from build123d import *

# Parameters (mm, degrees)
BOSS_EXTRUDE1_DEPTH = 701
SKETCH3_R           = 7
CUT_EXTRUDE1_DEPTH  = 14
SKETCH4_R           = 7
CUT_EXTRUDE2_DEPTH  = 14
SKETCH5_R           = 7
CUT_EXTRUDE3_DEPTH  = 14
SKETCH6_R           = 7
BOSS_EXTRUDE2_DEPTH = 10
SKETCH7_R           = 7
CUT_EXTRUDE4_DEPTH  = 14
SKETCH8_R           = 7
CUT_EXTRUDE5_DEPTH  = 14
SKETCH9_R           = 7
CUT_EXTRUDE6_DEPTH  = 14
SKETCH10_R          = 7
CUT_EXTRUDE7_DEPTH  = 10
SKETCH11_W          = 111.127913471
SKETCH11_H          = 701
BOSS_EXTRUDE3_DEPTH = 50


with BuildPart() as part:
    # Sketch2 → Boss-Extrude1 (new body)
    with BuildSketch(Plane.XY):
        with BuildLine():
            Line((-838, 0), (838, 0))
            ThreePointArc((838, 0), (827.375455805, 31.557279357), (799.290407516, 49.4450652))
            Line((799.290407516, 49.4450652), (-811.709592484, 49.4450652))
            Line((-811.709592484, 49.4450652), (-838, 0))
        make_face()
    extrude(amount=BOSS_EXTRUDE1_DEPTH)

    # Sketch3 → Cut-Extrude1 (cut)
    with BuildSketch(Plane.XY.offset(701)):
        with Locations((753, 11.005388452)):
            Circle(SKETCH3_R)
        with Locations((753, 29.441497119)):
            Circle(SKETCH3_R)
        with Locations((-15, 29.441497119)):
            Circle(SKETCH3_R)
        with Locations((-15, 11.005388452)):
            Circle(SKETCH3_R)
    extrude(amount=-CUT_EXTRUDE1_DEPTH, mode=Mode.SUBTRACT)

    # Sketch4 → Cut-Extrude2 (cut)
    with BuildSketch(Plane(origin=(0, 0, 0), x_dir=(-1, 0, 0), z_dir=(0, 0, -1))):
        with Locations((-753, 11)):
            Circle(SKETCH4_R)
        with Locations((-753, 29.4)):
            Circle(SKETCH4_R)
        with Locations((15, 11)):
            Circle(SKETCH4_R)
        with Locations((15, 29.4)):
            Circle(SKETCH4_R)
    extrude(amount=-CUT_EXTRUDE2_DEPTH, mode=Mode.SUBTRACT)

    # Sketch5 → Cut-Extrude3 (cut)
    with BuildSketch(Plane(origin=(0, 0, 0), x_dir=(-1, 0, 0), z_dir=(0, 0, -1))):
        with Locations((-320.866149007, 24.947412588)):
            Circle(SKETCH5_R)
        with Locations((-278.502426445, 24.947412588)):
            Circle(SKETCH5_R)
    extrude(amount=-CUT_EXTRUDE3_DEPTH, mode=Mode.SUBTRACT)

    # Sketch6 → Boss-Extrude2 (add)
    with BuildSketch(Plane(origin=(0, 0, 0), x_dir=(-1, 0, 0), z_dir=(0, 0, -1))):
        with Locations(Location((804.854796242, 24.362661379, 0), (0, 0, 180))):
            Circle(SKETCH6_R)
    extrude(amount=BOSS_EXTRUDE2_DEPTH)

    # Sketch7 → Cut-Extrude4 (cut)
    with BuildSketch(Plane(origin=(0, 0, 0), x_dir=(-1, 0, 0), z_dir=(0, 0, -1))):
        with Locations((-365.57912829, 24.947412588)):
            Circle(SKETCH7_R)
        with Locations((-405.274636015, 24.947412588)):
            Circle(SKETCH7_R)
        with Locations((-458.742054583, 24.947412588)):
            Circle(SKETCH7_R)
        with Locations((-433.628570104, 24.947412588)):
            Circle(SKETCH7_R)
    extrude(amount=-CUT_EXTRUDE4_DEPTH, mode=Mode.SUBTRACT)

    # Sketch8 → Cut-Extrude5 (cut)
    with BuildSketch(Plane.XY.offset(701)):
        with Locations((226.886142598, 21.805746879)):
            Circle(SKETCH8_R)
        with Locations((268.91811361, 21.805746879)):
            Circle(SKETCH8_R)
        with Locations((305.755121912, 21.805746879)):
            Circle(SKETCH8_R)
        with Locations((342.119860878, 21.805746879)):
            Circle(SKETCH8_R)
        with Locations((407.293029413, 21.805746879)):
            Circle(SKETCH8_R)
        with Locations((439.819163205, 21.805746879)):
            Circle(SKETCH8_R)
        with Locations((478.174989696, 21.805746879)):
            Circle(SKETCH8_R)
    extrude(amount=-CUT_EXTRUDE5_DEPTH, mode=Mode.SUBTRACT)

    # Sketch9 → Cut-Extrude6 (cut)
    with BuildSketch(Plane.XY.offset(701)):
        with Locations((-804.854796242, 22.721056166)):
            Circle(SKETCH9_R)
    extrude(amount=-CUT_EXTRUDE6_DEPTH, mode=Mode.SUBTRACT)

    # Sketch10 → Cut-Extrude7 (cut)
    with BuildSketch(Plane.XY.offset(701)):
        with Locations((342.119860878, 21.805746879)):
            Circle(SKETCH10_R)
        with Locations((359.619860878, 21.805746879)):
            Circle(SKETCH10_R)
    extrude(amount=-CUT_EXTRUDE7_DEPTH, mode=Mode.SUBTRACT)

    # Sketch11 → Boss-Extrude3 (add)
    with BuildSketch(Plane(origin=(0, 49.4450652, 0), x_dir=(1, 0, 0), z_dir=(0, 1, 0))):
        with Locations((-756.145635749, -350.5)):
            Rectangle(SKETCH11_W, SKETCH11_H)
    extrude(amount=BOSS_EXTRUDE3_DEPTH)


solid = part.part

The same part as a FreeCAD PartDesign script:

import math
import FreeCAD as App
import Part
import Sketcher

V = App.Vector
Q = App.Units.Quantity

doc = App.newDocument("Part")
body = doc.addObject("PartDesign::Body", "Body")

# Sketch on XY plane
sketch1 = doc.addObject("Sketcher::SketchObject", "Sketch")
body.addObject(sketch1)
sketch1.AttachmentSupport = (doc.XY_Plane, [""])
sketch1.MapMode = "FlatFace"
sketch1.addGeometry(Part.LineSegment(V(-838, 0, 0), V(838, 0, 0)), False)
sketch1.addGeometry(Part.ArcOfCircle(Part.Circle(V(788, 1, 0), V(0, 0, 1), 50), math.radians(-1), math.radians(77)), False)
sketch1.addGeometry(Part.LineSegment(V(799, 49, 0), V(-812, 49, 0)), False)
sketch1.addGeometry(Part.LineSegment(V(-812, 49, 0), V(-838, 0, 0)), False)
sketch1.addConstraint(Sketcher.Constraint("Coincident", 0, 2, 1, 1))
sketch1.addConstraint(Sketcher.Constraint("Coincident", 1, 2, 2, 1))
sketch1.addConstraint(Sketcher.Constraint("Coincident", 2, 2, 3, 1))
sketch1.addConstraint(Sketcher.Constraint("Coincident", 3, 2, 0, 1))
sketch1.addConstraint(Sketcher.Constraint("Horizontal", 0))
sketch1.addConstraint(Sketcher.Constraint("Horizontal", 2))
sketch1.addConstraint(Sketcher.Constraint("Symmetric", 0, 2, 3, 2, -1, 1))
sketch1.addConstraint(Sketcher.Constraint("Radius", 1, Q("50 mm")))
sketch1.addConstraint(Sketcher.Constraint("DistanceX", 0, 1, 0, 2, Q("1676 mm")))
sketch1.addConstraint(Sketcher.Constraint("DistanceX", 2, 2, 2, 1, Q("1611 mm")))
sketch1.addConstraint(Sketcher.Constraint("Angle", 3, Q("-118 deg")))
sketch1.addConstraint(Sketcher.Constraint("Distance", 3, Q("56 mm")))
pad1 = doc.addObject("PartDesign::Pad", "Pad")
body.addObject(pad1)
pad1.Profile = sketch1
pad1.Length = 701

# Sketch on XY plane
sketch2 = doc.addObject("Sketcher::SketchObject", "Sketch001")
body.addObject(sketch2)
sketch2.AttachmentSupport = (doc.XY_Plane, [""])
sketch2.MapMode = "FlatFace"
sketch2.AttachmentOffset = App.Placement(V(0, 0, 701), App.Rotation())
sketch2.addGeometry(Part.Circle(V(753, 11, 0), V(0, 0, 1), 7), False)
sketch2.addGeometry(Part.Circle(V(753, 29, 0), V(0, 0, 1), 7), False)
sketch2.addGeometry(Part.Circle(V(-15, 29, 0), V(0, 0, 1), 7), False)
sketch2.addGeometry(Part.Circle(V(-15, 11, 0), V(0, 0, 1), 7), False)
sketch2.addConstraint(Sketcher.Constraint("Equal", 0, 1))
sketch2.addConstraint(Sketcher.Constraint("Equal", 1, 2))
sketch2.addConstraint(Sketcher.Constraint("Equal", 2, 3))
sketch2.addConstraint(Sketcher.Constraint("Horizontal", 1, 3, 2, 3))
sketch2.addConstraint(Sketcher.Constraint("Horizontal", 0, 3, 3, 3))
sketch2.addConstraint(Sketcher.Constraint("Vertical", 0, 3, 1, 3))
sketch2.addConstraint(Sketcher.Constraint("Vertical", 2, 3, 3, 3))
sketch2.addConstraint(Sketcher.Constraint("Diameter", 0, Q("14 mm")))
sketch2.addConstraint(Sketcher.Constraint("DistanceX", -1, 1, 0, 3, Q("753 mm")))
sketch2.addConstraint(Sketcher.Constraint("DistanceX", 2, 3, -1, 1, Q("15 mm")))
sketch2.addConstraint(Sketcher.Constraint("DistanceY", -1, 1, 0, 3, Q("11.005388 mm")))
sketch2.addConstraint(Sketcher.Constraint("DistanceY", 0, 3, 1, 3, Q("18.436109 mm")))
pocket1 = doc.addObject("PartDesign::Pocket", "Pocket")
body.addObject(pocket1)
pocket1.Profile = sketch2
pocket1.Length = 14

# Sketch on XY plane
sketch3 = doc.addObject("Sketcher::SketchObject", "Sketch002")
body.addObject(sketch3)
sketch3.AttachmentSupport = (doc.XY_Plane, [""])
sketch3.MapMode = "FlatFace"
sketch3.addGeometry(Part.Circle(V(753, 11, 0), V(0, 0, 1), 7), False)
sketch3.addGeometry(Part.Circle(V(753, 29, 0), V(0, 0, 1), 7), False)
sketch3.addGeometry(Part.Circle(V(-15, 11, 0), V(0, 0, 1), 7), False)
sketch3.addGeometry(Part.Circle(V(-15, 29, 0), V(0, 0, 1), 7), False)
sketch3.addConstraint(Sketcher.Constraint("Equal", 0, 1))
sketch3.addConstraint(Sketcher.Constraint("Equal", 1, 2))
sketch3.addConstraint(Sketcher.Constraint("Equal", 2, 3))
sketch3.addConstraint(Sketcher.Constraint("Horizontal", 0, 3, 2, 3))
sketch3.addConstraint(Sketcher.Constraint("Horizontal", 1, 3, 3, 3))
sketch3.addConstraint(Sketcher.Constraint("Vertical", 0, 3, 1, 3))
sketch3.addConstraint(Sketcher.Constraint("Vertical", 2, 3, 3, 3))
sketch3.addConstraint(Sketcher.Constraint("Diameter", 0, Q("14 mm")))
sketch3.addConstraint(Sketcher.Constraint("DistanceX", -1, 1, 0, 3, Q("753 mm")))
sketch3.addConstraint(Sketcher.Constraint("DistanceY", -1, 1, 0, 3, Q("11 mm")))
sketch3.addConstraint(Sketcher.Constraint("DistanceX", 2, 3, -1, 1, Q("15 mm")))
sketch3.addConstraint(Sketcher.Constraint("DistanceY", -1, 1, 1, 3, Q("29.4 mm")))
pocket2 = doc.addObject("PartDesign::Pocket", "Pocket001")
body.addObject(pocket2)
pocket2.Profile = sketch3
pocket2.Length = 14
pocket2.Reversed = True

# Sketch on XY plane
sketch4 = doc.addObject("Sketcher::SketchObject", "Sketch003")
body.addObject(sketch4)
sketch4.AttachmentSupport = (doc.XY_Plane, [""])
sketch4.MapMode = "FlatFace"
sketch4.addGeometry(Part.Circle(V(321, 25, 0), V(0, 0, 1), 7), False)
sketch4.addGeometry(Part.Circle(V(279, 25, 0), V(0, 0, 1), 7), False)
sketch4.addConstraint(Sketcher.Constraint("Equal", 0, 1))
sketch4.addConstraint(Sketcher.Constraint("Horizontal", 0, 3, 1, 3))
sketch4.addConstraint(Sketcher.Constraint("Diameter", 0, Q("14 mm")))
sketch4.addConstraint(Sketcher.Constraint("DistanceX", -1, 1, 0, 3, Q("320.866149 mm")))
sketch4.addConstraint(Sketcher.Constraint("DistanceY", -1, 1, 0, 3, Q("24.947413 mm")))
sketch4.addConstraint(Sketcher.Constraint("DistanceX", -1, 1, 1, 3, Q("278.502426 mm")))
pocket3 = doc.addObject("PartDesign::Pocket", "Pocket002")
body.addObject(pocket3)
pocket3.Profile = sketch4
pocket3.Length = 14
pocket3.Reversed = True

# Sketch on XY plane
sketch5 = doc.addObject("Sketcher::SketchObject", "Sketch004")
body.addObject(sketch5)
sketch5.AttachmentSupport = (doc.XY_Plane, [""])
sketch5.MapMode = "FlatFace"
sketch5.addGeometry(Part.Circle(V(-805, 24, 0), V(0, 0, 1), 7), False)
sketch5.addConstraint(Sketcher.Constraint("Diameter", 0, Q("14 mm")))
sketch5.addConstraint(Sketcher.Constraint("DistanceY", -1, 1, 0, 3, Q("24.362661 mm")))
sketch5.addConstraint(Sketcher.Constraint("DistanceX", 0, 3, -1, 1, Q("804.854796 mm")))
pad2 = doc.addObject("PartDesign::Pad", "Pad001")
body.addObject(pad2)
pad2.Profile = sketch5
pad2.Length = 10
pad2.Reversed = True

# Sketch on XY plane
sketch6 = doc.addObject("Sketcher::SketchObject", "Sketch005")
body.addObject(sketch6)
sketch6.AttachmentSupport = (doc.XY_Plane, [""])
sketch6.MapMode = "FlatFace"
sketch6.addGeometry(Part.Circle(V(366, 25, 0), V(0, 0, 1), 7), False)
sketch6.addGeometry(Part.Circle(V(405, 25, 0), V(0, 0, 1), 7), False)
sketch6.addGeometry(Part.Circle(V(459, 25, 0), V(0, 0, 1), 7), False)
sketch6.addGeometry(Part.Circle(V(434, 25, 0), V(0, 0, 1), 7), False)
sketch6.addConstraint(Sketcher.Constraint("Equal", 0, 1))
sketch6.addConstraint(Sketcher.Constraint("Equal", 1, 2))
sketch6.addConstraint(Sketcher.Constraint("Equal", 2, 3))
sketch6.addConstraint(Sketcher.Constraint("Horizontal", 0, 3, 1, 3))
sketch6.addConstraint(Sketcher.Constraint("Horizontal", 1, 3, 2, 3))
sketch6.addConstraint(Sketcher.Constraint("Horizontal", 2, 3, 3, 3))
sketch6.addConstraint(Sketcher.Constraint("Diameter", 0, Q("14 mm")))
sketch6.addConstraint(Sketcher.Constraint("DistanceX", -1, 1, 0, 3, Q("365.579128 mm")))
sketch6.addConstraint(Sketcher.Constraint("DistanceX", -1, 1, 3, 3, Q("433.62857 mm")))
sketch6.addConstraint(Sketcher.Constraint("DistanceX", 1, 3, 2, 3, Q("53.467419 mm")))
sketch6.addConstraint(Sketcher.Constraint("DistanceY", -1, 1, 0, 3, Q("24.947413 mm")))
sketch6.addConstraint(Sketcher.Constraint("DistanceX", -1, 1, 1, 3, Q("405.274636 mm")))
pocket4 = doc.addObject("PartDesign::Pocket", "Pocket003")
body.addObject(pocket4)
pocket4.Profile = sketch6
pocket4.Length = 14
pocket4.Reversed = True

# Sketch on XY plane
sketch7 = doc.addObject("Sketcher::SketchObject", "Sketch006")
body.addObject(sketch7)
sketch7.AttachmentSupport = (doc.XY_Plane, [""])
sketch7.MapMode = "FlatFace"
sketch7.AttachmentOffset = App.Placement(V(0, 0, 701), App.Rotation())
sketch7.addGeometry(Part.Circle(V(227, 22, 0), V(0, 0, 1), 7), False)
sketch7.addGeometry(Part.Circle(V(269, 22, 0), V(0, 0, 1), 7), False)
sketch7.addGeometry(Part.Circle(V(306, 22, 0), V(0, 0, 1), 7), False)
sketch7.addGeometry(Part.Circle(V(342, 22, 0), V(0, 0, 1), 7), False)
sketch7.addGeometry(Part.Circle(V(407, 22, 0), V(0, 0, 1), 7), False)
sketch7.addGeometry(Part.Circle(V(440, 22, 0), V(0, 0, 1), 7), False)
sketch7.addGeometry(Part.Circle(V(478, 22, 0), V(0, 0, 1), 7), False)
sketch7.addConstraint(Sketcher.Constraint("Equal", 0, 1))
sketch7.addConstraint(Sketcher.Constraint("Equal", 1, 2))
sketch7.addConstraint(Sketcher.Constraint("Equal", 2, 3))
sketch7.addConstraint(Sketcher.Constraint("Equal", 3, 4))
sketch7.addConstraint(Sketcher.Constraint("Equal", 4, 5))
sketch7.addConstraint(Sketcher.Constraint("Equal", 5, 6))
sketch7.addConstraint(Sketcher.Constraint("Horizontal", 0, 3, 1, 3))
sketch7.addConstraint(Sketcher.Constraint("Horizontal", 1, 3, 2, 3))
sketch7.addConstraint(Sketcher.Constraint("Horizontal", 2, 3, 3, 3))
sketch7.addConstraint(Sketcher.Constraint("Horizontal", 3, 3, 4, 3))
sketch7.addConstraint(Sketcher.Constraint("Horizontal", 4, 3, 5, 3))
sketch7.addConstraint(Sketcher.Constraint("Horizontal", 5, 3, 6, 3))
sketch7.addConstraint(Sketcher.Constraint("Diameter", 0, Q("14 mm")))
sketch7.addConstraint(Sketcher.Constraint("DistanceX", -1, 1, 2, 3, Q("305.755122 mm")))
sketch7.addConstraint(Sketcher.Constraint("DistanceX", -1, 1, 3, 3, Q("342.119861 mm")))
sketch7.addConstraint(Sketcher.Constraint("DistanceX", -1, 1, 4, 3, Q("407.293029 mm")))
sketch7.addConstraint(Sketcher.Constraint("DistanceX", -1, 1, 6, 3, Q("478.17499 mm")))
sketch7.addConstraint(Sketcher.Constraint("DistanceX", 0, 3, 1, 3, Q("42.031971 mm")))
sketch7.addConstraint(Sketcher.Constraint("DistanceX", 1, 3, 2, 3, Q("36.837008 mm")))
sketch7.addConstraint(Sketcher.Constraint("DistanceX", 2, 3, 5, 3, Q("134.064041 mm")))
sketch7.addConstraint(Sketcher.Constraint("DistanceY", -1, 1, 0, 3, Q("21.805747 mm")))
pocket5 = doc.addObject("PartDesign::Pocket", "Pocket004")
body.addObject(pocket5)
pocket5.Profile = sketch7
pocket5.Length = 14

# Sketch on XY plane
sketch8 = doc.addObject("Sketcher::SketchObject", "Sketch007")
body.addObject(sketch8)
sketch8.AttachmentSupport = (doc.XY_Plane, [""])
sketch8.MapMode = "FlatFace"
sketch8.AttachmentOffset = App.Placement(V(0, 0, 701), App.Rotation())
sketch8.addGeometry(Part.Circle(V(-805, 23, 0), V(0, 0, 1), 7), False)
sketch8.addConstraint(Sketcher.Constraint("Diameter", 0, Q("14 mm")))
sketch8.addConstraint(Sketcher.Constraint("DistanceX", 0, 3, -1, 1, Q("804.854796 mm")))
sketch8.addConstraint(Sketcher.Constraint("DistanceY", -1, 1, 0, 3, Q("22.721056 mm")))
pocket6 = doc.addObject("PartDesign::Pocket", "Pocket005")
body.addObject(pocket6)
pocket6.Profile = sketch8
pocket6.Length = 14

# Sketch on XY plane
sketch9 = doc.addObject("Sketcher::SketchObject", "Sketch008")
body.addObject(sketch9)
sketch9.AttachmentSupport = (doc.XY_Plane, [""])
sketch9.MapMode = "FlatFace"
sketch9.AttachmentOffset = App.Placement(V(0, 0, 701), App.Rotation())
sketch9.addGeometry(Part.Circle(V(342, 22, 0), V(0, 0, 1), 7), False)
sketch9.addGeometry(Part.Circle(V(360, 22, 0), V(0, 0, 1), 7), False)
sketch9.addConstraint(Sketcher.Constraint("Equal", 0, 1))
sketch9.addConstraint(Sketcher.Constraint("Horizontal", 0, 3, 1, 3))
sketch9.addConstraint(Sketcher.Constraint("Diameter", 0, Q("14 mm")))
sketch9.addConstraint(Sketcher.Constraint("DistanceX", 0, 3, 1, 3, Q("17.5 mm")))
sketch9.addConstraint(Sketcher.Constraint("DistanceX", -1, 1, 0, 3, Q("342.119861 mm")))
sketch9.addConstraint(Sketcher.Constraint("DistanceY", -1, 1, 0, 3, Q("21.805747 mm")))
pocket7 = doc.addObject("PartDesign::Pocket", "Pocket006")
body.addObject(pocket7)
pocket7.Profile = sketch9
pocket7.Length = 10

# Sketch on XZ plane
sketch10 = doc.addObject("Sketcher::SketchObject", "Sketch009")
body.addObject(sketch10)
sketch10.AttachmentSupport = (doc.XZ_Plane, [""])
sketch10.MapMode = "FlatFace"
sketch10.AttachmentOffset = App.Placement(V(0, 0, -49.445065), App.Rotation())
sketch10.addGeometry(Part.LineSegment(V(-812, 0, 0), V(-812, 701, 0)), False)
sketch10.addGeometry(Part.LineSegment(V(-812, 701, 0), V(-701, 701, 0)), False)
sketch10.addGeometry(Part.LineSegment(V(-701, 701, 0), V(-701, 0, 0)), False)
sketch10.addGeometry(Part.LineSegment(V(-701, 0, 0), V(-812, 0, 0)), False)
sketch10.addConstraint(Sketcher.Constraint("Coincident", 0, 2, 1, 1))
sketch10.addConstraint(Sketcher.Constraint("Coincident", 1, 2, 2, 1))
sketch10.addConstraint(Sketcher.Constraint("Coincident", 2, 2, 3, 1))
sketch10.addConstraint(Sketcher.Constraint("Coincident", 3, 2, 0, 1))
sketch10.addConstraint(Sketcher.Constraint("Vertical", 0))
sketch10.addConstraint(Sketcher.Constraint("Horizontal", 1))
sketch10.addConstraint(Sketcher.Constraint("Vertical", 2))
sketch10.addConstraint(Sketcher.Constraint("Horizontal", 3))
sketch10.addConstraint(Sketcher.Constraint("PointOnObject", 2, 2, -1))
sketch10.addConstraint(Sketcher.Constraint("DistanceY", 0, 1, 0, 2, Q("701 mm")))
sketch10.addConstraint(Sketcher.Constraint("DistanceX", 1, 1, 1, 2, Q("111.127913 mm")))
sketch10.addConstraint(Sketcher.Constraint("DistanceX", 1, 2, -1, 1, Q("700.581679 mm")))
pad3 = doc.addObject("PartDesign::Pad", "Pad002")
body.addObject(pad3)
pad3.Profile = sketch10
pad3.Length = 50
pad3.Reversed = True

doc.recompute()
